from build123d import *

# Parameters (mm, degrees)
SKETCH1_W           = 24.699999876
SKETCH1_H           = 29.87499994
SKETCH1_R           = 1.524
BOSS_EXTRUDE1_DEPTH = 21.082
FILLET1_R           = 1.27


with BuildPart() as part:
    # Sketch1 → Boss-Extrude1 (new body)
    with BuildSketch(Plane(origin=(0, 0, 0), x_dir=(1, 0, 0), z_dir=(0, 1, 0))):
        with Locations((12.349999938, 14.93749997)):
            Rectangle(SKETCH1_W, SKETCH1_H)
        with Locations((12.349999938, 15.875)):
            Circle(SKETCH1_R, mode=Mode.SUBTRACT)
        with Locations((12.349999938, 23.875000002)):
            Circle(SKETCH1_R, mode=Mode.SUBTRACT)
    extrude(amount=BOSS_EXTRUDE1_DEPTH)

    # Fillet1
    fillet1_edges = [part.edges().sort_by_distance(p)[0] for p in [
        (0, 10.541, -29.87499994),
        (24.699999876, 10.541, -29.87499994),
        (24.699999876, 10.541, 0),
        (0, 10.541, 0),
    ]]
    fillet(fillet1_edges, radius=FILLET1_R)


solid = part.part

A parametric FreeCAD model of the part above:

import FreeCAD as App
import Part
import Sketcher

V = App.Vector
Q = App.Units.Quantity


def edges_at(feature, points):
    """Names of the edges that pass closest to the given points."""
    edges = feature.Shape.Edges
    near = lambda p: min(range(len(edges)), key=lambda i: edges[i].distToShape(Part.Vertex(*p))[0])
    return sorted({f"Edge{near(p) + 1}" for p in points})


def add_polygon(sketch, points):
    """Adds a closed chain of lines whose ends are joined by coincident constraints."""
    first, n = sketch.GeometryCount, len(points)
    for a, b in zip(points, points[1:] + points[:1]):
        sketch.addGeometry(Part.LineSegment(App.Vector(*a, 0), App.Vector(*b, 0)), False)
    for i in range(n):
        sketch.addConstraint(Sketcher.Constraint("Coincident", first + i, 2, first + (i + 1) % n, 1))

doc = App.newDocument("Part")
body = doc.addObject("PartDesign::Body", "Body")

sketch1 = body.newObject("Sketcher::SketchObject", "Sketch")
sketch1.AttachmentSupport = (doc.getObject("XZ_Plane"), [""])
sketch1.MapMode = "FlatFace"
add_polygon(sketch1, [(0, -29.875), (0, 0), (24.7, 0), (24.7, -29.875)])
sketch1.addGeometry(Part.Circle(V(12.35, -15.875, 0), V(0, 0, 1), 1.524), False)
sketch1.addGeometry(Part.Circle(V(12.35, -23.875, 0), V(0, 0, 1), 1.524), False)
sketch1.addConstraint([
    Sketcher.Constraint("Vertical", 0),
    Sketcher.Constraint("Horizontal", 1),
    Sketcher.Constraint("Vertical", 2),
    Sketcher.Constraint("Horizontal", 3),
    Sketcher.Constraint("Coincident", 0, 2, -1, 1),
    Sketcher.Constraint("Equal", 4, 5),
    Sketcher.Constraint("Vertical", 4, 3, 5, 3),
    Sketcher.Constraint("Diameter", 4, Q("0.12 in")),
    Sketcher.Constraint("DistanceY", 4, 3, -1, 1, Q("0.625 in")),
    Sketcher.Constraint("DistanceX", 1, 1, 1, 2, 24.7),
    Sketcher.Constraint("DistanceY", 0, 1, 0, 2, 29.875),
    Sketcher.Constraint("DistanceX", -1, 1, 4, 3, 12.35),
    Sketcher.Constraint("DistanceY", 5, 3, -1, 1, 23.875),
])
pad1 = body.newObject("PartDesign::Pad", "Pad")
pad1.Profile = sketch1
pad1.Length = Q("0.83 in")
pad1.Reversed = True
doc.recompute()

fillet = body.newObject("PartDesign::Fillet", "Fillet")
fillet.Base = (pad1, edges_at(pad1, [
    (0, 10.541, -29.875),
    (24.7, 10.541, -29.875),
    (24.7, 10.541, 0),
    (0, 10.541, 0),
]))
fillet.Radius = Q("0.05 in")

doc.recompute()
